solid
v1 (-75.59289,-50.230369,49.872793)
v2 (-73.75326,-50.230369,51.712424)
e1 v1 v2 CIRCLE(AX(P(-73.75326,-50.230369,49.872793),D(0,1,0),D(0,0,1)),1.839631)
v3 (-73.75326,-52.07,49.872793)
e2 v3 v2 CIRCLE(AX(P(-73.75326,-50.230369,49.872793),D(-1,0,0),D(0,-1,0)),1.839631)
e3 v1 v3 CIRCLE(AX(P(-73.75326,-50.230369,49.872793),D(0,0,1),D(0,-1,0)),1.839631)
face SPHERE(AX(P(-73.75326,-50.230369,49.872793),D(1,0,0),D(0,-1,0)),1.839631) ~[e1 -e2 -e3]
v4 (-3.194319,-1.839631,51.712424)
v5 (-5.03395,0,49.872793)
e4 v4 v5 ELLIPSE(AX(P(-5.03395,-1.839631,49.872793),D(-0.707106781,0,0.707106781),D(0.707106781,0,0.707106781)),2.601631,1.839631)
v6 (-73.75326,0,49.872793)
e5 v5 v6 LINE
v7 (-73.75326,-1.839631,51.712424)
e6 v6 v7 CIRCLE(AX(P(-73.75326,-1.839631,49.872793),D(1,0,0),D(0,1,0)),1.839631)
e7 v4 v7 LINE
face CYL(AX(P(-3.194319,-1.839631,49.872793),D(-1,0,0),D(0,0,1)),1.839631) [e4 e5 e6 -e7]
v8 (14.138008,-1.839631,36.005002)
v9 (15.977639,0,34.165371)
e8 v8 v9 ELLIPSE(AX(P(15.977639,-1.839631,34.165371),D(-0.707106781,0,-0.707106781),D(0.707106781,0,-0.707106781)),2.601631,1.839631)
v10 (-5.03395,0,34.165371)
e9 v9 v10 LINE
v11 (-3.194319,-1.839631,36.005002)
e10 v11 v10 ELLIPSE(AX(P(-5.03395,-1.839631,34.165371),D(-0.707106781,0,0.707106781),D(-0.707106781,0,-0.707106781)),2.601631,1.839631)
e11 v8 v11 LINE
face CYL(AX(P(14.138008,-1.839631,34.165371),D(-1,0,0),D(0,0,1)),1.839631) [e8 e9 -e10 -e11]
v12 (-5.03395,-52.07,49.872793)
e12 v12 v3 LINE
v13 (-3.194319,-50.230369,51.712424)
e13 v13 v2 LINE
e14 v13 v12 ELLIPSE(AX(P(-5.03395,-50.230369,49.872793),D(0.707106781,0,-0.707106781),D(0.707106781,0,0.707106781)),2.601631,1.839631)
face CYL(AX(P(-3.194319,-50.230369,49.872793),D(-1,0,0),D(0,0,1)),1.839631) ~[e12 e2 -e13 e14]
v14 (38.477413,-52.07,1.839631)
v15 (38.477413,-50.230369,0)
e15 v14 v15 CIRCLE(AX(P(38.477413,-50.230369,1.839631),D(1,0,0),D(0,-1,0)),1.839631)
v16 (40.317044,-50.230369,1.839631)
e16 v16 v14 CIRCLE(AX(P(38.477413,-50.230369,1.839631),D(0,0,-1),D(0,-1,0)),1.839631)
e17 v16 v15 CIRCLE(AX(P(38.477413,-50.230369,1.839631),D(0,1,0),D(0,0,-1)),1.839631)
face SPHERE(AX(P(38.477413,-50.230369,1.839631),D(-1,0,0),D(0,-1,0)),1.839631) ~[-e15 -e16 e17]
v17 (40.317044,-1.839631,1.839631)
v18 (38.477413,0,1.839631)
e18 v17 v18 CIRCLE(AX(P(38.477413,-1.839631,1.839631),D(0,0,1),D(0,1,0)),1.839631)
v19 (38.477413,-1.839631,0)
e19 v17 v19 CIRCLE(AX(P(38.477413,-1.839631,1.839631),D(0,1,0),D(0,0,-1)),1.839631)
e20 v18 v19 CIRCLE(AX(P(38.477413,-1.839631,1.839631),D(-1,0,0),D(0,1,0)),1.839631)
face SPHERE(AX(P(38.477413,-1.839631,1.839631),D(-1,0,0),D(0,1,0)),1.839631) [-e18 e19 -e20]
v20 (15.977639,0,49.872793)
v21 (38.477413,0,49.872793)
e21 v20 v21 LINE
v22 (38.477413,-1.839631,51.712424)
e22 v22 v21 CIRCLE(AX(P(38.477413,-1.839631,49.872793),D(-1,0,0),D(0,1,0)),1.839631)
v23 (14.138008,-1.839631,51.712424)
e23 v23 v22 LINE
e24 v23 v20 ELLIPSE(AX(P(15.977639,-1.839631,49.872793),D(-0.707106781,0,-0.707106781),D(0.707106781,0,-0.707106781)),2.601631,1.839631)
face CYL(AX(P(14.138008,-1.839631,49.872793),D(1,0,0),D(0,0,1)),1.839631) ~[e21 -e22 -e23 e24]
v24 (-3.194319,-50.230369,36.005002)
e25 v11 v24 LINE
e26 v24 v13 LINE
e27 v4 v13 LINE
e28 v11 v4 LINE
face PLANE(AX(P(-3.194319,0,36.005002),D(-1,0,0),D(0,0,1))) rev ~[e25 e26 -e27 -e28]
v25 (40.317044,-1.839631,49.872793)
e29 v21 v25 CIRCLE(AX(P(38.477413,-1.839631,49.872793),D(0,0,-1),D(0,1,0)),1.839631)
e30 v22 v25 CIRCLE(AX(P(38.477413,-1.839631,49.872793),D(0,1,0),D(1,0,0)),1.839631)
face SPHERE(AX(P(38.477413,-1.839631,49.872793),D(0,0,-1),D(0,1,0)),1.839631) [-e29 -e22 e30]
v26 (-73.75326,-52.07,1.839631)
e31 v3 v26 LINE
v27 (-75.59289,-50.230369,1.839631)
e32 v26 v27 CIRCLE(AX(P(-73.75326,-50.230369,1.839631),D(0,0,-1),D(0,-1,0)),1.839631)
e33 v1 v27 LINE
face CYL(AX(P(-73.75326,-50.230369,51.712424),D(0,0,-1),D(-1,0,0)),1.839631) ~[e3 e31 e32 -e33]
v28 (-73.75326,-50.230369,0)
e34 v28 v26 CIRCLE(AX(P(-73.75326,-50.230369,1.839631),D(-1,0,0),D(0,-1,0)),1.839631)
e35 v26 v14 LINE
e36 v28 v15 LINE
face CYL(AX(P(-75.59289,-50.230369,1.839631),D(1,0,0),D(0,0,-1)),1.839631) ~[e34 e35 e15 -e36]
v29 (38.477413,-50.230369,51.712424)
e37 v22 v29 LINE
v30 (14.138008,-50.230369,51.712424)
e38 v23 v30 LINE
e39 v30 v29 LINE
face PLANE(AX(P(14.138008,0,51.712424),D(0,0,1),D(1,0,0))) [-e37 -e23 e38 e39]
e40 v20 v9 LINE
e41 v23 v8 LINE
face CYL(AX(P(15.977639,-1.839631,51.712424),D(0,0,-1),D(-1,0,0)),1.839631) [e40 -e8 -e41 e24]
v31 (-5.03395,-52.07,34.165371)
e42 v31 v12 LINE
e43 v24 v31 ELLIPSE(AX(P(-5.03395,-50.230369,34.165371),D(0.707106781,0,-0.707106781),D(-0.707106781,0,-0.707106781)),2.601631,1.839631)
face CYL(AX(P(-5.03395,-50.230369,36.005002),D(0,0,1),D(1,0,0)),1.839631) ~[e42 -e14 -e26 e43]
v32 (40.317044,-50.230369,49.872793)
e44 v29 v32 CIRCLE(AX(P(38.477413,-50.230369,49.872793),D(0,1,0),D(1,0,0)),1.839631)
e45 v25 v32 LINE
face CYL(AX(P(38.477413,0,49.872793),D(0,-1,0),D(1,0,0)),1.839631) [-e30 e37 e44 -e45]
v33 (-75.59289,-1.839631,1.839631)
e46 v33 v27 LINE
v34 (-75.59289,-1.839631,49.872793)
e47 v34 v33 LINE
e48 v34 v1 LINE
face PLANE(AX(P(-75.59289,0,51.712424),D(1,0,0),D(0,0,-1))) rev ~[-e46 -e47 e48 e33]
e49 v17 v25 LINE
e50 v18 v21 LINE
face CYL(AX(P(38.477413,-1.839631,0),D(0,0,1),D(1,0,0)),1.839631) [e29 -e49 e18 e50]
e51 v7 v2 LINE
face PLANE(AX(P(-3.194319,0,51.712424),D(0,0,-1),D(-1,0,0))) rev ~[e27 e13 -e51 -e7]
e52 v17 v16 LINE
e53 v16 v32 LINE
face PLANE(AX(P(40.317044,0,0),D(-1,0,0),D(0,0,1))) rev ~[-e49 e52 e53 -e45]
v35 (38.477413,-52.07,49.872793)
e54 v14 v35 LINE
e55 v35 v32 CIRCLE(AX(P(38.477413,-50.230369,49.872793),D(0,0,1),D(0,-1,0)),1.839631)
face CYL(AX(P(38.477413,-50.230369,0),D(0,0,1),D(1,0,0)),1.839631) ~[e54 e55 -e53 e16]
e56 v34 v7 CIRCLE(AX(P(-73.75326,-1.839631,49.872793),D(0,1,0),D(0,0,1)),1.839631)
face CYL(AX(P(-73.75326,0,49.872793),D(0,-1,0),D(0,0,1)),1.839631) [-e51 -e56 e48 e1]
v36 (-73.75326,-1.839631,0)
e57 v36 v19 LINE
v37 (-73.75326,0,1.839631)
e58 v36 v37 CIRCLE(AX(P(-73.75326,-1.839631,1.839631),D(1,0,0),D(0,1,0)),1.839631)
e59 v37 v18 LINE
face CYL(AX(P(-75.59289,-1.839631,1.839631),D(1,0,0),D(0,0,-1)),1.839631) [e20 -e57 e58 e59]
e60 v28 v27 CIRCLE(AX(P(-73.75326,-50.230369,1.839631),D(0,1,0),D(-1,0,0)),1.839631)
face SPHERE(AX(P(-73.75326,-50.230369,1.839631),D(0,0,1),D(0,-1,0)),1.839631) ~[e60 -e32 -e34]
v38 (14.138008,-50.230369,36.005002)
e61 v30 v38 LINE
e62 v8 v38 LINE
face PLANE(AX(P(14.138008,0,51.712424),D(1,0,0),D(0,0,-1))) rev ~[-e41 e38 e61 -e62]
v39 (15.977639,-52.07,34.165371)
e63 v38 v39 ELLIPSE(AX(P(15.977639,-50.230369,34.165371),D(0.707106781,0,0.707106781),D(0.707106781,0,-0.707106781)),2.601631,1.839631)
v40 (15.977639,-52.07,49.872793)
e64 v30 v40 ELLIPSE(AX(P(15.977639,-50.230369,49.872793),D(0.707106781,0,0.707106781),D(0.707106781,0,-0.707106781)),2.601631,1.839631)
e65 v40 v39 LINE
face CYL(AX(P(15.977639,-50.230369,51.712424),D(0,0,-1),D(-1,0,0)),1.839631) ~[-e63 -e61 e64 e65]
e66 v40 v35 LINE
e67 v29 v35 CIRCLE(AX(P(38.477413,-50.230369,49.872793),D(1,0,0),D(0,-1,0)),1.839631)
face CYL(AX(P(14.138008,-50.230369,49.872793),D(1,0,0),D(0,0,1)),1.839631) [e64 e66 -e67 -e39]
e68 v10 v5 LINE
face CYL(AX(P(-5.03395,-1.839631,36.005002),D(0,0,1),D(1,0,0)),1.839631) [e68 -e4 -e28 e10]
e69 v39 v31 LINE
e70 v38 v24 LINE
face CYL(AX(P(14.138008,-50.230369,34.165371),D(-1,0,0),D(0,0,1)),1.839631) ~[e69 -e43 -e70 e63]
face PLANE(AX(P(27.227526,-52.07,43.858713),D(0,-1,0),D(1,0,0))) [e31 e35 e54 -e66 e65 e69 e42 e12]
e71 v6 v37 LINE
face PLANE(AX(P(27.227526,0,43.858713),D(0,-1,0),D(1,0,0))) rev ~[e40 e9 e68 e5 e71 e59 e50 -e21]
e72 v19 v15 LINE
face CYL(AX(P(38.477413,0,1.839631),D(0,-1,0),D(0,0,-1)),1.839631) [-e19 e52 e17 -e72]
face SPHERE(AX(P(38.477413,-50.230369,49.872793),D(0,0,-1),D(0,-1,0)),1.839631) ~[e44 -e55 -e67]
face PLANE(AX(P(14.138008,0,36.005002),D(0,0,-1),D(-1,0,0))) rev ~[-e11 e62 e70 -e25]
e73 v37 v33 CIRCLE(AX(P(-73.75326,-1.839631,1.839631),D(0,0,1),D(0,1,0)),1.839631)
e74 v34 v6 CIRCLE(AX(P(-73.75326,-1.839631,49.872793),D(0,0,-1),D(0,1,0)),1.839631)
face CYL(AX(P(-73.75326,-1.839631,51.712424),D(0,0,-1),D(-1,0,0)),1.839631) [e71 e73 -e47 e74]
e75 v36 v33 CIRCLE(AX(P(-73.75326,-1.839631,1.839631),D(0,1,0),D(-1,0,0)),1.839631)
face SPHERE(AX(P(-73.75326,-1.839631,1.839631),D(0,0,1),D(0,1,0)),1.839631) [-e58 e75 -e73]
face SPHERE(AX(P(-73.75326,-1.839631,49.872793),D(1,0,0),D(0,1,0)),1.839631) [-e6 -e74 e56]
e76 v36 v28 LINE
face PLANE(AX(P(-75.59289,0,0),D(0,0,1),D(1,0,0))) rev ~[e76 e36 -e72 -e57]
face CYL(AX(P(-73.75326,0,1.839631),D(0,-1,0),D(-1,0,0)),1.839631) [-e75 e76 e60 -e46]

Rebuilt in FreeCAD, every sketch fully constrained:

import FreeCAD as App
import Part
import Sketcher
Q = App.Units.Quantity


def edges_at(feature, points):
    """Names of the edges that pass closest to the given points."""
    edges = feature.Shape.Edges
    near = lambda p: min(range(len(edges)), key=lambda i: edges[i].distToShape(Part.Vertex(*p))[0])
    return sorted({f"Edge{near(p) + 1}" for p in points})


def add_polygon(sketch, points):
    """Adds a closed chain of lines whose ends are joined by coincident constraints."""
    first, n = sketch.GeometryCount, len(points)
    for a, b in zip(points, points[1:] + points[:1]):
        sketch.addGeometry(Part.LineSegment(App.Vector(*a, 0), App.Vector(*b, 0)), False)
    for i in range(n):
        sketch.addConstraint(Sketcher.Constraint("Coincident", first + i, 2, first + (i + 1) % n, 1))

doc = App.newDocument("Part")
body = doc.addObject("PartDesign::Body", "Body")

# Sketch on XZ plane
sketch1 = doc.addObject("Sketcher::SketchObject", "Sketch")
body.addObject(sketch1)
sketch1.AttachmentSupport = (doc.XZ_Plane, [""])
sketch1.MapMode = "FlatFace"
add_polygon(sketch1, [(14.138008, 51.712424), (14.138008, 36.005002), (-3.194319, 36.005002), (-3.194319, 51.712424), (-75.59289, 51.712424), (-75.59289, 0), (40.317044, 0), (40.317044, 51.712424)])  # lines 0-7
sketch1.addConstraint(Sketcher.Constraint("Vertical", 0))
sketch1.addConstraint(Sketcher.Constraint("Horizontal", 1))
sketch1.addConstraint(Sketcher.Constraint("Vertical", 2))
sketch1.addConstraint(Sketcher.Constraint("Horizontal", 3))
sketch1.addConstraint(Sketcher.Constraint("Vertical", 4))
sketch1.addConstraint(Sketcher.Constraint("Horizontal", 5))
sketch1.addConstraint(Sketcher.Constraint("Vertical", 6))
sketch1.addConstraint(Sketcher.Constraint("Horizontal", 7))
sketch1.addConstraint(Sketcher.Constraint("PointOnObject", 4, 2, -1))
sketch1.addConstraint(Sketcher.Constraint("Horizontal", 3, 2, 6, 2))
sketch1.addConstraint(Sketcher.Constraint("DistanceX", 3, 2, 3, 1, 72.398571))
sketch1.addConstraint(Sketcher.Constraint("DistanceY", -1, 1, 0, 2, 36.005002))
sketch1.addConstraint(Sketcher.Constraint("DistanceX", 3, 2, 0, 2, 89.730899))
sketch1.addConstraint(Sketcher.Constraint("DistanceX", 5, 1, 5, 2, 115.909934))
sketch1.addConstraint(Sketcher.Constraint("DistanceY", 0, 2, 0, 1, 15.707422))
sketch1.addConstraint(Sketcher.Constraint("DistanceX", -1, 1, 0, 2, 14.138008))
pad1 = doc.addObject("PartDesign::Pad", "Pad")
body.addObject(pad1)
pad1.Profile = sketch1
pad1.Length = Q("2.05 in")
doc.recompute()

fillet = doc.addObject("PartDesign::Fillet", "Fillet")
body.addObject(fillet)
fillet.Base = (pad1, edges_at(pad1, [
    (14.138, 0, 43.859),
    (5.472, 0, 36.005),
    (-3.194, 0, 43.859),
    (-39.394, 0, 51.712),
    (-75.593, 0, 25.856),
    (-17.638, 0, 0),
    (40.317, 0, 25.856),
    (27.228, 0, 51.712),
    (14.138, -52.07, 43.859),
    (5.472, -52.07, 36.005),
    (-3.194, -52.07, 43.859),
    (-39.394, -52.07, 51.712),
    (-75.593, -52.07, 25.856),
    (-17.638, -52.07, 0),
    (40.317, -52.07, 25.856),
    (27.228, -52.07, 51.712),
    (40.317, -26.035, 0),
    (40.317, -26.035, 51.712),
    (-75.593, -26.035, 51.712),
    (-75.593, -26.035, 0),
]))
fillet.Radius = 1.839631

doc.recompute()
